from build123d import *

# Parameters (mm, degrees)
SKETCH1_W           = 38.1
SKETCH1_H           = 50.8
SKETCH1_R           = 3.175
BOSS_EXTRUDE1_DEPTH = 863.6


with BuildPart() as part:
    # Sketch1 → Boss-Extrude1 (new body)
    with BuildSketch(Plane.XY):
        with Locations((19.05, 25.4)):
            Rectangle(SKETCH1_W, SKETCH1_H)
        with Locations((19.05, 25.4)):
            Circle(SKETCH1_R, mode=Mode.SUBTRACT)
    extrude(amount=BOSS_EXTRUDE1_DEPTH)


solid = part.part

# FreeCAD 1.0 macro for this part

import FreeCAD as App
import Part
import Sketcher

V = App.Vector
Q = App.Units.Quantity


def add_polygon(sketch, points):
    """Adds a closed chain of lines whose ends are joined by coincident constraints."""
    first, n = sketch.GeometryCount, len(points)
    for a, b in zip(points, points[1:] + points[:1]):
        sketch.addGeometry(Part.LineSegment(App.Vector(*a, 0), App.Vector(*b, 0)), False)
    for i in range(n):
        sketch.addConstraint(Sketcher.Constraint("Coincident", first + i, 2, first + (i + 1) % n, 1))

doc = App.newDocument("Part")
body = doc.addObject("PartDesign::Body", "Body")

sketch1 = body.newObject("Sketcher::SketchObject", "Sketch")
sketch1.AttachmentSupport = (doc.getObject("XY_Plane"), [""])
sketch1.MapMode = "FlatFace"
add_polygon(sketch1, [(0, 50.8), (0, 0), (38.1, 0), (38.1, 50.8)])
sketch1.addGeometry(Part.Circle(V(19.05, 25.4, 0), V(0, 0, 1), 3.175), False)
sketch1.addConstraint([
    Sketcher.Constraint("Vertical", 0),
    Sketcher.Constraint("Horizontal", 1),
    Sketcher.Constraint("Vertical", 2),
    Sketcher.Constraint("Horizontal", 3),
    Sketcher.Constraint("Coincident", 0, 2, -1, 1),
    Sketcher.Constraint("Diameter", 4, Q("0.25 in")),
    Sketcher.Constraint("DistanceY", 0, 2, 0, 1, Q("2 in")),
    Sketcher.Constraint("DistanceX", 1, 1, 1, 2, Q("1.5 in")),
    Sketcher.Constraint("DistanceY", -1, 1, 4, 3, Q("1 in")),
    Sketcher.Constraint("DistanceX", -1, 1, 4, 3, Q("0.75 in")),
])
pad1 = body.newObject("PartDesign::Pad", "Pad")
pad1.Profile = sketch1
pad1.Length = Q("34 in")

doc.recompute()
